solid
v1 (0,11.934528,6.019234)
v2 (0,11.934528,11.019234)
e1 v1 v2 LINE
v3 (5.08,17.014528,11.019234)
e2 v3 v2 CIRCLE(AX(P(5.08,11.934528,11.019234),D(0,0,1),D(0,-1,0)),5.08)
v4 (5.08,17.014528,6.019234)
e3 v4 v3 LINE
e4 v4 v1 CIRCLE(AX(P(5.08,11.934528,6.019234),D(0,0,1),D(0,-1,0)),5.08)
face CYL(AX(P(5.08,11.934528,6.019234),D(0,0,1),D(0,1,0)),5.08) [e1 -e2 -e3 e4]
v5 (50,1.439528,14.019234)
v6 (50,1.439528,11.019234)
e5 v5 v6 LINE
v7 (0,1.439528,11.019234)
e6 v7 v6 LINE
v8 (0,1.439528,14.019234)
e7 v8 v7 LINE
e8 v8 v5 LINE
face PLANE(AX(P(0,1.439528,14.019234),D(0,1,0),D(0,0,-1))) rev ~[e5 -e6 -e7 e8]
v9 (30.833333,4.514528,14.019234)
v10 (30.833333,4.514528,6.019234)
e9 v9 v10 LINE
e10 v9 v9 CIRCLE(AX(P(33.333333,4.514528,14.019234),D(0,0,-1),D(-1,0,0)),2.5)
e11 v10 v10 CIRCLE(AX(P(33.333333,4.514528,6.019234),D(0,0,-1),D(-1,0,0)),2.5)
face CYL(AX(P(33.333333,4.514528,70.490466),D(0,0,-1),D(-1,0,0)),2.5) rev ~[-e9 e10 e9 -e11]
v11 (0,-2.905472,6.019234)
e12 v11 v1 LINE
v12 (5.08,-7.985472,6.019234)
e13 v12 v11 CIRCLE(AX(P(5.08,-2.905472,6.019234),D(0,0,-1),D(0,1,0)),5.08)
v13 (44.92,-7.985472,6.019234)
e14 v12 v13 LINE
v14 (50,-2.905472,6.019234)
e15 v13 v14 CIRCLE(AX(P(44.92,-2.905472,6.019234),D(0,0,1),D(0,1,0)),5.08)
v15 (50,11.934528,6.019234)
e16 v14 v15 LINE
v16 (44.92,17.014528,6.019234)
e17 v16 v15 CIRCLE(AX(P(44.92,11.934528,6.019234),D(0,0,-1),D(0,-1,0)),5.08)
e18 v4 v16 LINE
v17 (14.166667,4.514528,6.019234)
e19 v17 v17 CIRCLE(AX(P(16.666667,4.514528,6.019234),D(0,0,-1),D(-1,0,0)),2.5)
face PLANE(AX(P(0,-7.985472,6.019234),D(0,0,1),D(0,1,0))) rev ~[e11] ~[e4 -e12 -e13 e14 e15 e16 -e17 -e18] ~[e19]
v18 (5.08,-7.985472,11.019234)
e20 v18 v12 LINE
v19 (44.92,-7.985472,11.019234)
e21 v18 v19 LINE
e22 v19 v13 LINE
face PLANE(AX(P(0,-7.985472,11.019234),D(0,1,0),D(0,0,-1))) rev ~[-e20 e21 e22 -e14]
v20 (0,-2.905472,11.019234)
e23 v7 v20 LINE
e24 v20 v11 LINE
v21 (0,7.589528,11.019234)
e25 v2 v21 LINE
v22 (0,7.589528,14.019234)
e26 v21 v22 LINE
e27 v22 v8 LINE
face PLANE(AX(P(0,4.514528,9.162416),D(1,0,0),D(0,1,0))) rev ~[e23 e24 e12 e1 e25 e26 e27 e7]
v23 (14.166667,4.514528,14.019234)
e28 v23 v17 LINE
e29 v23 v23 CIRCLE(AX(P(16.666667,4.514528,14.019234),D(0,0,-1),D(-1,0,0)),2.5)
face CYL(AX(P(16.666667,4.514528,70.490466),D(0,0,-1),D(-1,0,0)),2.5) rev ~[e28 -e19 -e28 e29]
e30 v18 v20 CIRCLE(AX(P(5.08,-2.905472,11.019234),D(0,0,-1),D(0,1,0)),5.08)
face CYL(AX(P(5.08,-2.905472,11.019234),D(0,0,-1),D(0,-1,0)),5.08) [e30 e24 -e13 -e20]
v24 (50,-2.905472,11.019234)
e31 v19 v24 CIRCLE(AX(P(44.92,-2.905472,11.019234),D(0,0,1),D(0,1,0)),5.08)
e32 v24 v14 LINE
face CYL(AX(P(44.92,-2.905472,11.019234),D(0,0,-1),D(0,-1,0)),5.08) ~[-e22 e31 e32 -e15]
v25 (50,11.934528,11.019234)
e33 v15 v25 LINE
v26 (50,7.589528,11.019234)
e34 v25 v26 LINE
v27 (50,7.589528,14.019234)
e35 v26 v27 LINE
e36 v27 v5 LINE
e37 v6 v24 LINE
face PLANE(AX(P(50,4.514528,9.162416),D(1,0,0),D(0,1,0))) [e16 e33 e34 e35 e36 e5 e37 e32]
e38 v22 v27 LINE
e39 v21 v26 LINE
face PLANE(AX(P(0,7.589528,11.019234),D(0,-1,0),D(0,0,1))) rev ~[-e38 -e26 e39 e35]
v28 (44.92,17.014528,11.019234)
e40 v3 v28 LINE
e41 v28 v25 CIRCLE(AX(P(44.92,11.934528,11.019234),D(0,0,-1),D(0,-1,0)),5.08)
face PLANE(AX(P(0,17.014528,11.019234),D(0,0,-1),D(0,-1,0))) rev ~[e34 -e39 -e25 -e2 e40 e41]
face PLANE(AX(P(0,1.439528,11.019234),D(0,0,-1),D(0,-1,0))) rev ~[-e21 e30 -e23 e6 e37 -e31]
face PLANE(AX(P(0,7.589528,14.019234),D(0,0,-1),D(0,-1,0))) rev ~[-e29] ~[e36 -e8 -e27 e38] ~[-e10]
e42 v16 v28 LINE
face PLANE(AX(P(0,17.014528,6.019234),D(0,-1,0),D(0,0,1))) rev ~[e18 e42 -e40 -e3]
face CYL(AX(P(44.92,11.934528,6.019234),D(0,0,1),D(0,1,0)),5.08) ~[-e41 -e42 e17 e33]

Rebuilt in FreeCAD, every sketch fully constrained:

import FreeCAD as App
import Part
import Sketcher


def edges_at(feature, points):
    """Names of the edges that pass closest to the given points."""
    edges = feature.Shape.Edges
    near = lambda p: min(range(len(edges)), key=lambda i: edges[i].distToShape(Part.Vertex(*p))[0])
    return sorted({f"Edge{near(p) + 1}" for p in points})


def add_polygon(sketch, points):
    """Adds a closed chain of lines whose ends are joined by coincident constraints."""
    first, n = sketch.GeometryCount, len(points)
    for a, b in zip(points, points[1:] + points[:1]):
        sketch.addGeometry(Part.LineSegment(App.Vector(*a, 0), App.Vector(*b, 0)), False)
    for i in range(n):
        sketch.addConstraint(Sketcher.Constraint("Coincident", first + i, 2, first + (i + 1) % n, 1))

doc = App.newDocument("Part")
body = doc.addObject("PartDesign::Body", "Body")

# Sketch on YZ plane
sketch1 = doc.addObject("Sketcher::SketchObject", "Sketch")
body.addObject(sketch1)
sketch1.AttachmentSupport = (doc.YZ_Plane, [""])
sketch1.MapMode = "FlatFace"
add_polygon(sketch1, [(1.4, 14), (1.4, 11), (-8, 11), (-8, 6), (17, 6), (17, 11), (7.6, 11), (7.6, 14)])  # lines 0-7
sketch1.addConstraint([
    Sketcher.Constraint("Vertical", 0),
    Sketcher.Constraint("Horizontal", 1),
    Sketcher.Constraint("Vertical", 2),
    Sketcher.Constraint("Horizontal", 3),
    Sketcher.Constraint("Vertical", 4),
    Sketcher.Constraint("Horizontal", 5),
    Sketcher.Constraint("Vertical", 6),
    Sketcher.Constraint("Horizontal", 7),
    Sketcher.Constraint("Horizontal", 1, 2, 4, 2),
    Sketcher.Constraint("Equal", 1, 5),
    Sketcher.Constraint("DistanceX", 3, 1, 3, 2, 25.0),
    Sketcher.Constraint("DistanceY", 0, 2, 0, 1, 3.0),
    Sketcher.Constraint("DistanceY", 2, 2, 2, 1, 5.0),
    Sketcher.Constraint("DistanceX", 7, 2, 7, 1, 6.15),
    Sketcher.Constraint("DistanceX", 1, 2, -1, 1, 7.985472),
    Sketcher.Constraint("DistanceY", -1, 1, 0, 2, 11.019234),
])
pad1 = doc.addObject("PartDesign::Pad", "Pad")
body.addObject(pad1)
pad1.Profile = sketch1
pad1.Length = 50
doc.recompute()

fillet = doc.addObject("PartDesign::Fillet", "Fillet")
body.addObject(fillet)
fillet.Base = (pad1, edges_at(pad1, [
    (50, 17.015, 8.519),
    (50, -7.985, 8.519),
    (0, 17.015, 8.519),
    (0, -7.985, 8.519),
]))
fillet.Radius = 5.08

# Sketch on XY plane
sketch2 = doc.addObject("Sketcher::SketchObject", "Sketch001")
body.addObject(sketch2)
sketch2.AttachmentSupport = (doc.XY_Plane, [""])
sketch2.MapMode = "FlatFace"
sketch2.AttachmentOffset = App.Placement(App.Vector(0, 0, 14.019234), App.Rotation())
sketch2.addGeometry([
    Part.Circle(App.Vector(16.7, 4.5, 0), App.Vector(0, 0, 1), 2.5),
    Part.Circle(App.Vector(33.3, 4.5, 0), App.Vector(0, 0, 1), 2.5),
], False)
sketch2.addConstraint([
    Sketcher.Constraint("Equal", 0, 1),
    Sketcher.Constraint("Horizontal", 0, 3, 1, 3),
    Sketcher.Constraint("Diameter", 0, 5.0),
    Sketcher.Constraint("DistanceY", -1, 1, 0, 3, 4.514528),
    Sketcher.Constraint("DistanceX", -1, 1, 0, 3, 16.666667),
    Sketcher.Constraint("DistanceX", -1, 1, 1, 3, 33.333333),
])
doc.recompute()
hole = doc.addObject("PartDesign::Hole", "Hole")
body.addObject(hole)
hole.Profile = sketch2
hole.ThreadType = "None"
hole.Diameter = 5
hole.DepthType = "ThroughAll"

doc.recompute()
